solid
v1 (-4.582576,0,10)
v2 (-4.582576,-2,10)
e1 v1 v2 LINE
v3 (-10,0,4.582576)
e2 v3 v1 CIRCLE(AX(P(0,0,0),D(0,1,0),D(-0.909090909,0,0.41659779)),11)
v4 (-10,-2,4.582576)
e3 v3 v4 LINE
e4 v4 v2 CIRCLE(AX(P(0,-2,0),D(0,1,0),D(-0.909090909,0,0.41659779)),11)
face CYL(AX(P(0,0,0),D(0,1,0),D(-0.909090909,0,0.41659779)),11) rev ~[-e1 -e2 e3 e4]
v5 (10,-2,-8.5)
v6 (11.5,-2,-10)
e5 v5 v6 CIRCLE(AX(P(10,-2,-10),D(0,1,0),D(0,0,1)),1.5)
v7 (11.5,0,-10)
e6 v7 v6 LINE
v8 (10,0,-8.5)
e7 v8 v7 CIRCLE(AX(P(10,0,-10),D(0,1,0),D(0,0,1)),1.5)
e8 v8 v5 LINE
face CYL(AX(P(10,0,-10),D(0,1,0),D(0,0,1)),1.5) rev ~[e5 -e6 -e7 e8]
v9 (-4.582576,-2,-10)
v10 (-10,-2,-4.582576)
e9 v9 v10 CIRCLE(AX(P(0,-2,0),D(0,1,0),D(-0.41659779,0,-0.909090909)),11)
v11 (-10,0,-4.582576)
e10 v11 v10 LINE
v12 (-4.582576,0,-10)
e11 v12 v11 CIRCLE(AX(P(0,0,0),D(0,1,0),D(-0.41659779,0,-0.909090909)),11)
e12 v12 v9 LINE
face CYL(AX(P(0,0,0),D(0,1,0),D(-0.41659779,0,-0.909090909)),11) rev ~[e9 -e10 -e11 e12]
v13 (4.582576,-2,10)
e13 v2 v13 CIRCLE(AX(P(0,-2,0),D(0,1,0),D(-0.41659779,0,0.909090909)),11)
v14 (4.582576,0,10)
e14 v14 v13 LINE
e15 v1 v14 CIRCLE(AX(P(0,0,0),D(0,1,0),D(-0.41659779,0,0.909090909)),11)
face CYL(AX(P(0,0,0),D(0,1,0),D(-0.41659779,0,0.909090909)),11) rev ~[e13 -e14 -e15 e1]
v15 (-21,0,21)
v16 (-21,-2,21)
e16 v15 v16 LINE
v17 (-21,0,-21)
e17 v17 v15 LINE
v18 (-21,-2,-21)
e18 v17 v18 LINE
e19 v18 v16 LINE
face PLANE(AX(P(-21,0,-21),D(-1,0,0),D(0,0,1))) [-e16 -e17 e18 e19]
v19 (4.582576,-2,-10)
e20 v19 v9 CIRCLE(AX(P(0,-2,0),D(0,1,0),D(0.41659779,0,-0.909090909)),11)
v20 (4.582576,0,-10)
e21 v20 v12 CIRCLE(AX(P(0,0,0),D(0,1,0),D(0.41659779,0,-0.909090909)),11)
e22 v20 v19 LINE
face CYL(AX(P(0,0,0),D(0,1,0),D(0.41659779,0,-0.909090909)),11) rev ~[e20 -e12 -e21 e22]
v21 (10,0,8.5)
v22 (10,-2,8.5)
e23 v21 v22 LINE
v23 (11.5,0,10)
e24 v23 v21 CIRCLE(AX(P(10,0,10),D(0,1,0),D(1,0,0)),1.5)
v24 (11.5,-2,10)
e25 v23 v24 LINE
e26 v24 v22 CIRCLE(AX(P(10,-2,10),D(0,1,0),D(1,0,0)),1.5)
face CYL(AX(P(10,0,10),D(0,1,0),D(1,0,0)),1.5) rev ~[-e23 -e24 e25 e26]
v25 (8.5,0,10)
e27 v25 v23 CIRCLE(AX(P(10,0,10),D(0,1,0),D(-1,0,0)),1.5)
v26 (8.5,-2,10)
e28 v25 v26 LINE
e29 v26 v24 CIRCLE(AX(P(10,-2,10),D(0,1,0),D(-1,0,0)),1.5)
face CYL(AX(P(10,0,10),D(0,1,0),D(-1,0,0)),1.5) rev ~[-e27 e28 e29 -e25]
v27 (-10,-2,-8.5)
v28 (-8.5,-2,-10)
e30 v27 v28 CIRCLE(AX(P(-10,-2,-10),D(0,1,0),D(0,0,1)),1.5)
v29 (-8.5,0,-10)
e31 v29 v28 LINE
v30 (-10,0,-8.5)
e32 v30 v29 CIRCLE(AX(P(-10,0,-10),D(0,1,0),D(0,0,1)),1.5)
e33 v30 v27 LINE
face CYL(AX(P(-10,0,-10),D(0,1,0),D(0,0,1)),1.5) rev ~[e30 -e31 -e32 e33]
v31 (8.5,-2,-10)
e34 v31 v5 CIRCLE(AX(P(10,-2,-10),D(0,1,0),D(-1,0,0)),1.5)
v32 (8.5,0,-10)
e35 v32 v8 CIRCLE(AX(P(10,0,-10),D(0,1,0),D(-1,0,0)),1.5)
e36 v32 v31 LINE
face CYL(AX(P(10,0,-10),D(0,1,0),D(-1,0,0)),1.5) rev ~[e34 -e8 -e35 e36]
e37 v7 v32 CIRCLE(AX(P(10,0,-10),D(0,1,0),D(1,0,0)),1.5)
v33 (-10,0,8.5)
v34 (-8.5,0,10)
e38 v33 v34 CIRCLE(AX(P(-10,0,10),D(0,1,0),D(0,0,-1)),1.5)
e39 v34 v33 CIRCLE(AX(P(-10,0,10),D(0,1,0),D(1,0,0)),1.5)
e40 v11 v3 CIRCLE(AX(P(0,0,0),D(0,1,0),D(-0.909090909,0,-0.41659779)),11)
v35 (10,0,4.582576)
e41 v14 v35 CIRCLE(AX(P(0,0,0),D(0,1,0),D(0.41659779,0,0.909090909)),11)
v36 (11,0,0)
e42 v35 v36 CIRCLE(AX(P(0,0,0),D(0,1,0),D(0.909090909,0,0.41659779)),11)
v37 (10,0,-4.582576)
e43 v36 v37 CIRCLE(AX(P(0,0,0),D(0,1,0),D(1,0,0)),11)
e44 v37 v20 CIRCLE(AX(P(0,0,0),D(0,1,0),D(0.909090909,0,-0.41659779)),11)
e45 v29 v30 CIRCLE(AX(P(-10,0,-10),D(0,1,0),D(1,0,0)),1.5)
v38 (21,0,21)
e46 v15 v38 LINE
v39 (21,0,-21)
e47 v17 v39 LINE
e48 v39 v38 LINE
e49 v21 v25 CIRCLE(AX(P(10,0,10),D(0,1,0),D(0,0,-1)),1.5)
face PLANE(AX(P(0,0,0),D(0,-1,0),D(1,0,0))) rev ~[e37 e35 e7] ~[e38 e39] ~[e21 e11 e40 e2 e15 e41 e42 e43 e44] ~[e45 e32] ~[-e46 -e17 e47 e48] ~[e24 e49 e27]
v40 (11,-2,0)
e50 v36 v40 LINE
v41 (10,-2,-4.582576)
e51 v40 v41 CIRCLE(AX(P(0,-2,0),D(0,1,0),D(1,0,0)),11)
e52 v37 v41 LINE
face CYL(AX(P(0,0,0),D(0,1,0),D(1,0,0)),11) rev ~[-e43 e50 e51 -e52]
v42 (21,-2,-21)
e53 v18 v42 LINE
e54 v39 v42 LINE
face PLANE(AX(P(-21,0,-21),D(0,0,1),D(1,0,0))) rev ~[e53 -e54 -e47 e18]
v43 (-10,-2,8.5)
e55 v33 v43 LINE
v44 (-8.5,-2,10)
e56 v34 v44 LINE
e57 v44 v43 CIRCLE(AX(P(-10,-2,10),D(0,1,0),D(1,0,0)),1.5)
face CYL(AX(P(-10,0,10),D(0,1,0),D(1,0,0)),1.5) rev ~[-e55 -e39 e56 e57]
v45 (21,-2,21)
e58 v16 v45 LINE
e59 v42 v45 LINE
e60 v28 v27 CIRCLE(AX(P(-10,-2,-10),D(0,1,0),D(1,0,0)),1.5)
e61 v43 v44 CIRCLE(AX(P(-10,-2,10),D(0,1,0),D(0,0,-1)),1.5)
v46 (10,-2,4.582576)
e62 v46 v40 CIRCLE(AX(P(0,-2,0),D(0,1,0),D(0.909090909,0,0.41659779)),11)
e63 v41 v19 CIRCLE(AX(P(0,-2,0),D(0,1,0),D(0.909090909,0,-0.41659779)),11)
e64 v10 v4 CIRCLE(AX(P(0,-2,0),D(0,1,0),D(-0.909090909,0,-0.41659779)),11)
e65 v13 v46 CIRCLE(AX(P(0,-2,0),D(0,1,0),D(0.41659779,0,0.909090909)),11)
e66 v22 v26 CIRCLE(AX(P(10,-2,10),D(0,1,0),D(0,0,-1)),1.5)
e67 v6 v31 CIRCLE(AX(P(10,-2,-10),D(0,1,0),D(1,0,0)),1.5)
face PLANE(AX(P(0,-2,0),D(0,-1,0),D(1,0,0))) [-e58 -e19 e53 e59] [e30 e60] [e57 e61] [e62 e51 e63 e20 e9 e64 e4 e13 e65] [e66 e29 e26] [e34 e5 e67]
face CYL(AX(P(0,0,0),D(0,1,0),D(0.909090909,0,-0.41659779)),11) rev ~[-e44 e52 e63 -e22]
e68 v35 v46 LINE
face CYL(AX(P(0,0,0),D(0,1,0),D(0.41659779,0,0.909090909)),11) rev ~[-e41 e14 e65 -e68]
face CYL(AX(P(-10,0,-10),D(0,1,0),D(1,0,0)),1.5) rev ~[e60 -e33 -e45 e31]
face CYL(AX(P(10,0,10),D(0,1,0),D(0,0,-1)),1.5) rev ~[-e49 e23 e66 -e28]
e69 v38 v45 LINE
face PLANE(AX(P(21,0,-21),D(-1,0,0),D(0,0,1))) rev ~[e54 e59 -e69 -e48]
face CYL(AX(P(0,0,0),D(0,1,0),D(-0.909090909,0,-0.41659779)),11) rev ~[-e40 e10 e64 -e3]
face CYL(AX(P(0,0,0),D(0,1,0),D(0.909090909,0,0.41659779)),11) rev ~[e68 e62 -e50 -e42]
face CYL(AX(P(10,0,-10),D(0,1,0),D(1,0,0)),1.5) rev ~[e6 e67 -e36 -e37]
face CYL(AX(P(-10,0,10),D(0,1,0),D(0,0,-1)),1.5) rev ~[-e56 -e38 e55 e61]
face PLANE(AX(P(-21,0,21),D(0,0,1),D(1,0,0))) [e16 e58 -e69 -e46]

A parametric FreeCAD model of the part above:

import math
import FreeCAD as App
import Part
import Sketcher

V = App.Vector
Q = App.Units.Quantity


def add_polygon(sketch, points):
    """Adds a closed chain of lines whose ends are joined by coincident constraints."""
    first, n = sketch.GeometryCount, len(points)
    for a, b in zip(points, points[1:] + points[:1]):
        sketch.addGeometry(Part.LineSegment(App.Vector(*a, 0), App.Vector(*b, 0)), False)
    for i in range(n):
        sketch.addConstraint(Sketcher.Constraint("Coincident", first + i, 2, first + (i + 1) % n, 1))

doc = App.newDocument("Part")
body = doc.addObject("PartDesign::Body", "Body")

# Sketch on XZ plane
sketch1 = body.newObject("Sketcher::SketchObject", "Sketch")
sketch1.AttachmentSupport = (doc.getObject("XZ_Plane"), [""])
sketch1.MapMode = "FlatFace"
add_polygon(sketch1, [(-21, 21), (-21, -21), (21, -21), (21, 21)])  # lines 0-3
sketch1.addGeometry(Part.ArcOfCircle(Part.Circle(V(0, 0, 0), V(0, 0, 1), 11), math.radians(155), math.radians(205)), False)  # 4
sketch1.addGeometry(Part.ArcOfCircle(Part.Circle(V(0, 0, 0), V(0, 0, 1), 11), math.radians(115), math.radians(155)), False)  # 5
sketch1.addGeometry(Part.ArcOfCircle(Part.Circle(V(0, 0, 0), V(0, 0, 1), 11), math.radians(65), math.radians(115)), False)  # 6
sketch1.addGeometry(Part.ArcOfCircle(Part.Circle(V(0, 0, 0), V(0, 0, 1), 11), math.radians(25), math.radians(65)), False)  # 7
sketch1.addGeometry(Part.ArcOfCircle(Part.Circle(V(0, 0, 0), V(0, 0, 1), 11), math.radians(0), math.radians(25)), False)  # 8
sketch1.addGeometry(Part.ArcOfCircle(Part.Circle(V(0, 0, 0), V(0, 0, 1), 11), math.radians(-25), math.radians(0)), False)  # 9
sketch1.addGeometry(Part.ArcOfCircle(Part.Circle(V(0, 0, 0), V(0, 0, 1), 11), math.radians(-65), math.radians(-25)), False)  # 10
sketch1.addGeometry(Part.ArcOfCircle(Part.Circle(V(0, 0, 0), V(0, 0, 1), 11), math.radians(-115), math.radians(-65)), False)  # 11
sketch1.addGeometry(Part.ArcOfCircle(Part.Circle(V(0, 0, 0), V(0, 0, 1), 11), math.radians(-155), math.radians(-115)), False)  # 12
sketch1.addGeometry(Part.ArcOfCircle(Part.Circle(V(10, 10, 0), V(0, 0, 1), 1.5), math.radians(0), math.radians(180)), False)  # 13
sketch1.addGeometry(Part.ArcOfCircle(Part.Circle(V(10, 10, 0), V(0, 0, 1), 1.5), math.radians(-90), math.radians(0)), False)  # 14
sketch1.addGeometry(Part.ArcOfCircle(Part.Circle(V(10, 10, 0), V(0, 0, 1), 1.5), math.radians(180), math.radians(270)), False)  # 15
sketch1.addGeometry(Part.ArcOfCircle(Part.Circle(V(10, -10, 0), V(0, 0, 1), 1.5), math.radians(0), math.radians(90)), False)  # 16
sketch1.addGeometry(Part.ArcOfCircle(Part.Circle(V(10, -10, 0), V(0, 0, 1), 1.5), math.radians(180), math.radians(360)), False)  # 17
sketch1.addGeometry(Part.ArcOfCircle(Part.Circle(V(10, -10, 0), V(0, 0, 1), 1.5), math.radians(90), math.radians(180)), False)  # 18
sketch1.addGeometry(Part.ArcOfCircle(Part.Circle(V(-10, -10, 0), V(0, 0, 1), 1.5), math.radians(90), math.radians(360)), False)  # 19
sketch1.addGeometry(Part.ArcOfCircle(Part.Circle(V(-10, -10, 0), V(0, 0, 1), 1.5), math.radians(0), math.radians(90)), False)  # 20
sketch1.addGeometry(Part.ArcOfCircle(Part.Circle(V(-10, 10, 0), V(0, 0, 1), 1.5), math.radians(0), math.radians(270)), False)  # 21
sketch1.addGeometry(Part.ArcOfCircle(Part.Circle(V(-10, 10, 0), V(0, 0, 1), 1.5), math.radians(-90), math.radians(0)), False)  # 22
sketch1.addConstraint([
    Sketcher.Constraint("Tangent", 4, 1, 5, 2),
    Sketcher.Constraint("Tangent", 5, 1, 6, 2),
    Sketcher.Constraint("Tangent", 6, 1, 7, 2),
    Sketcher.Constraint("Tangent", 7, 1, 8, 2),
    Sketcher.Constraint("Tangent", 8, 1, 9, 2),
    Sketcher.Constraint("Tangent", 9, 1, 10, 2),
    Sketcher.Constraint("Tangent", 10, 1, 11, 2),
    Sketcher.Constraint("Tangent", 11, 1, 12, 2),
    Sketcher.Constraint("Tangent", 12, 1, 4, 2),
    Sketcher.Constraint("Tangent", 13, 1, 14, 2),
    Sketcher.Constraint("Tangent", 14, 1, 15, 2),
    Sketcher.Constraint("Tangent", 15, 1, 13, 2),
    Sketcher.Constraint("Tangent", 16, 1, 17, 2),
    Sketcher.Constraint("Tangent", 17, 1, 18, 2),
    Sketcher.Constraint("Tangent", 18, 1, 16, 2),
    Sketcher.Constraint("Tangent", 19, 1, 20, 2),
    Sketcher.Constraint("Coincident", 20, 1, 19, 2),
    Sketcher.Constraint("Tangent", 21, 1, 22, 2),
    Sketcher.Constraint("Coincident", 22, 1, 21, 2),
    Sketcher.Constraint("Vertical", 0),
    Sketcher.Constraint("Horizontal", 1),
    Sketcher.Constraint("Vertical", 2),
    Sketcher.Constraint("Horizontal", 3),
    Sketcher.Constraint("Coincident", 4, 3, -1, 1),
    Sketcher.Constraint("Coincident", 6, 3, -1, 1),
    Sketcher.Constraint("Coincident", 8, 3, -1, 1),
    Sketcher.Constraint("Coincident", 10, 3, -1, 1),
    Sketcher.Constraint("Equal", 15, 16),
    Sketcher.Constraint("Equal", 18, 19),
    Sketcher.Constraint("Equal", 20, 21),
    Sketcher.Constraint("Symmetric", 13, 3, 19, 3, -1, 1),
    Sketcher.Constraint("Symmetric", 16, 3, 21, 3, -1, 1),
    Sketcher.Constraint("Symmetric", 0, 2, 2, 2, -1, 1),
    Sketcher.Constraint("Symmetric", 16, 3, 19, 3, -2),
    Sketcher.Constraint("PointOnObject", 8, 1, -1),
    Sketcher.Constraint("Horizontal", 22, 3, 5, 1),
    Sketcher.Constraint("Horizontal", 5, 1, 6, 1),
    Sketcher.Constraint("Horizontal", 4, 1, 7, 1),
    Sketcher.Constraint("Horizontal", 20, 3, 10, 1),
    Sketcher.Constraint("Horizontal", 10, 1, 11, 1),
    Sketcher.Constraint("Horizontal", 9, 1, 12, 1),
    Sketcher.Constraint("Horizontal", 6, 1, 13, 1),
    Sketcher.Constraint("Horizontal", 13, 1, 15, 1),
    Sketcher.Constraint("Horizontal", 11, 1, 16, 1),
    Sketcher.Constraint("Horizontal", 16, 1, 17, 1),
    Sketcher.Constraint("Horizontal", 17, 1, 20, 1),
    Sketcher.Constraint("Horizontal", 15, 1, 21, 1),
    Sketcher.Constraint("Vertical", 22, 3, 4, 1),
    Sketcher.Constraint("Vertical", 7, 1, 9, 1),
    Sketcher.Constraint("Vertical", 9, 1, 14, 1),
    Sketcher.Constraint("Vertical", 14, 1, 18, 1),
    Sketcher.Constraint("Vertical", 12, 1, 19, 1),
    Sketcher.Constraint("Vertical", 19, 1, 22, 1),
    Sketcher.Constraint("Equal", 3, 0),
    Sketcher.Constraint("Radius", 4, Q("11 mm")),
    Sketcher.Constraint("Radius", 13, Q("1.5 mm")),
    Sketcher.Constraint("DistanceX", 1, 1, 1, 2, Q("42 mm")),
    Sketcher.Constraint("DistanceX", -1, 1, 13, 3, Q("10 mm")),
    Sketcher.Constraint("DistanceY", -1, 1, 13, 3, Q("10 mm")),
])
pad1 = body.newObject("PartDesign::Pad", "Pad")
pad1.Profile = sketch1
pad1.Length = 2

doc.recompute()
